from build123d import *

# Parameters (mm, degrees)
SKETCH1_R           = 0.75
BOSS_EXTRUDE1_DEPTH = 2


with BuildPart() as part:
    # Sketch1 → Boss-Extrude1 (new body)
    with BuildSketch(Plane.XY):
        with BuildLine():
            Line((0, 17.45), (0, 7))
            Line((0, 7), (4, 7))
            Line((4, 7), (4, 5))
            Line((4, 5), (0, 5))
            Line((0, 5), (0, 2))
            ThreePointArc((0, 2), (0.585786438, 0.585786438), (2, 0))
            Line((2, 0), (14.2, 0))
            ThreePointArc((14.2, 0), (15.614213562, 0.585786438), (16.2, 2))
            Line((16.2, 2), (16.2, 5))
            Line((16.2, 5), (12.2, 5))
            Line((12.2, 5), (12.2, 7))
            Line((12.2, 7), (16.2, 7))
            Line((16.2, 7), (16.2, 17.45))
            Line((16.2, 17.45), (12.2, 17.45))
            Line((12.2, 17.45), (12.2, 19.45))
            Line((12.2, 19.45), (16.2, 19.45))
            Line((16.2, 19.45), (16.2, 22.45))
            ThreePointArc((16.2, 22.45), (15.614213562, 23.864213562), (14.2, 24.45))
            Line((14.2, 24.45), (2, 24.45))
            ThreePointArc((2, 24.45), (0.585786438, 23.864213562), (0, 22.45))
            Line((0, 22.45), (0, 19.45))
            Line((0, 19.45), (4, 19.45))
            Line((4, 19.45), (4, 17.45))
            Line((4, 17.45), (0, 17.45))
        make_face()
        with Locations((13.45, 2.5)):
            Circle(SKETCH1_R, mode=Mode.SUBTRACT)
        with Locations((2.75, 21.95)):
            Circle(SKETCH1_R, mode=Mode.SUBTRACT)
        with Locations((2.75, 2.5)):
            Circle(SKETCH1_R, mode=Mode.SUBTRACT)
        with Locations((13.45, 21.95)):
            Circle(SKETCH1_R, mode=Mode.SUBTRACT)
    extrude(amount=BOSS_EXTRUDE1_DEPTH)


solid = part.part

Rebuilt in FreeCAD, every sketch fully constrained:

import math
import FreeCAD as App
import Part
import Sketcher

V = App.Vector

doc = App.newDocument("Part")
body = doc.addObject("PartDesign::Body", "Body")

# Sketch on XY plane
sketch1 = doc.addObject("Sketcher::SketchObject", "Sketch")
body.addObject(sketch1)
sketch1.AttachmentSupport = (doc.XY_Plane, [""])
sketch1.MapMode = "FlatFace"
sketch1.addGeometry(Part.LineSegment(V(0, 17.4, 0), V(0, 7, 0)), False)
sketch1.addGeometry(Part.LineSegment(V(0, 7, 0), V(4, 7, 0)), False)
sketch1.addGeometry(Part.LineSegment(V(4, 7, 0), V(4, 5, 0)), False)
sketch1.addGeometry(Part.LineSegment(V(4, 5, 0), V(0, 5, 0)), False)
sketch1.addGeometry(Part.LineSegment(V(0, 5, 0), V(0, 2, 0)), False)
sketch1.addGeometry(Part.ArcOfCircle(Part.Circle(V(2, 2, 0), V(0, 0, 1), 2), math.radians(-180), math.radians(-90)), False)
sketch1.addGeometry(Part.LineSegment(V(2, 0, 0), V(14.2, 0, 0)), False)
sketch1.addGeometry(Part.ArcOfCircle(Part.Circle(V(14.2, 2, 0), V(0, 0, 1), 2), math.radians(-90), math.radians(0)), False)
sketch1.addGeometry(Part.LineSegment(V(16.2, 2, 0), V(16.2, 5, 0)), False)
sketch1.addGeometry(Part.LineSegment(V(16.2, 5, 0), V(12.2, 5, 0)), False)
sketch1.addGeometry(Part.LineSegment(V(12.2, 5, 0), V(12.2, 7, 0)), False)
sketch1.addGeometry(Part.LineSegment(V(12.2, 7, 0), V(16.2, 7, 0)), False)
sketch1.addGeometry(Part.LineSegment(V(16.2, 7, 0), V(16.2, 17.4, 0)), False)
sketch1.addGeometry(Part.LineSegment(V(16.2, 17.4, 0), V(12.2, 17.4, 0)), False)
sketch1.addGeometry(Part.LineSegment(V(12.2, 17.4, 0), V(12.2, 19.4, 0)), False)
sketch1.addGeometry(Part.LineSegment(V(12.2, 19.4, 0), V(16.2, 19.4, 0)), False)
sketch1.addGeometry(Part.LineSegment(V(16.2, 19.4, 0), V(16.2, 22.4, 0)), False)
sketch1.addGeometry(Part.ArcOfCircle(Part.Circle(V(14.2, 22.4, 0), V(0, 0, 1), 2), math.radians(0), math.radians(90)), False)
sketch1.addGeometry(Part.LineSegment(V(14.2, 24.4, 0), V(2, 24.4, 0)), False)
sketch1.addGeometry(Part.ArcOfCircle(Part.Circle(V(2, 22.4, 0), V(0, 0, 1), 2), math.radians(90), math.radians(180)), False)
sketch1.addGeometry(Part.LineSegment(V(0, 22.4, 0), V(0, 19.4, 0)), False)
sketch1.addGeometry(Part.LineSegment(V(0, 19.4, 0), V(4, 19.4, 0)), False)
sketch1.addGeometry(Part.LineSegment(V(4, 19.4, 0), V(4, 17.4, 0)), False)
sketch1.addGeometry(Part.LineSegment(V(4, 17.4, 0), V(0, 17.4, 0)), False)
sketch1.addGeometry(Part.Circle(V(2.8, 2.5, 0), V(0, 0, 1), 0.8), False)
sketch1.addGeometry(Part.Circle(V(13.4, 2.5, 0), V(0, 0, 1), 0.8), False)
sketch1.addGeometry(Part.Circle(V(2.8, 21.9, 0), V(0, 0, 1), 0.8), False)
sketch1.addGeometry(Part.Circle(V(13.4, 21.9, 0), V(0, 0, 1), 0.8), False)
sketch1.addConstraint(Sketcher.Constraint("Coincident", 0, 2, 1, 1))
sketch1.addConstraint(Sketcher.Constraint("Coincident", 1, 2, 2, 1))
sketch1.addConstraint(Sketcher.Constraint("Coincident", 2, 2, 3, 1))
sketch1.addConstraint(Sketcher.Constraint("Coincident", 3, 2, 4, 1))
sketch1.addConstraint(Sketcher.Constraint("Tangent", 4, 2, 5, 1))
sketch1.addConstraint(Sketcher.Constraint("Tangent", 5, 2, 6, 1))
sketch1.addConstraint(Sketcher.Constraint("Tangent", 6, 2, 7, 1))
sketch1.addConstraint(Sketcher.Constraint("Tangent", 7, 2, 8, 1))
sketch1.addConstraint(Sketcher.Constraint("Coincident", 8, 2, 9, 1))
sketch1.addConstraint(Sketcher.Constraint("Coincident", 9, 2, 10, 1))
sketch1.addConstraint(Sketcher.Constraint("Coincident", 10, 2, 11, 1))
sketch1.addConstraint(Sketcher.Constraint("Coincident", 11, 2, 12, 1))
sketch1.addConstraint(Sketcher.Constraint("Coincident", 12, 2, 13, 1))
sketch1.addConstraint(Sketcher.Constraint("Coincident", 13, 2, 14, 1))
sketch1.addConstraint(Sketcher.Constraint("Coincident", 14, 2, 15, 1))
sketch1.addConstraint(Sketcher.Constraint("Coincident", 15, 2, 16, 1))
sketch1.addConstraint(Sketcher.Constraint("Tangent", 16, 2, 17, 1))
sketch1.addConstraint(Sketcher.Constraint("Tangent", 17, 2, 18, 1))
sketch1.addConstraint(Sketcher.Constraint("Tangent", 18, 2, 19, 1))
sketch1.addConstraint(Sketcher.Constraint("Tangent", 19, 2, 20, 1))
sketch1.addConstraint(Sketcher.Constraint("Coincident", 20, 2, 21, 1))
sketch1.addConstraint(Sketcher.Constraint("Coincident", 21, 2, 22, 1))
sketch1.addConstraint(Sketcher.Constraint("Coincident", 22, 2, 23, 1))
sketch1.addConstraint(Sketcher.Constraint("Coincident", 23, 2, 0, 1))
sketch1.addConstraint(Sketcher.Constraint("Vertical", 0))
sketch1.addConstraint(Sketcher.Constraint("Horizontal", 1))
sketch1.addConstraint(Sketcher.Constraint("Vertical", 2))
sketch1.addConstraint(Sketcher.Constraint("Horizontal", 3))
sketch1.addConstraint(Sketcher.Constraint("Vertical", 4))
sketch1.addConstraint(Sketcher.Constraint("Horizontal", 6))
sketch1.addConstraint(Sketcher.Constraint("Vertical", 8))
sketch1.addConstraint(Sketcher.Constraint("Horizontal", 9))
sketch1.addConstraint(Sketcher.Constraint("Vertical", 10))
sketch1.addConstraint(Sketcher.Constraint("Horizontal", 11))
sketch1.addConstraint(Sketcher.Constraint("Vertical", 12))
sketch1.addConstraint(Sketcher.Constraint("Horizontal", 13))
sketch1.addConstraint(Sketcher.Constraint("Vertical", 14))
sketch1.addConstraint(Sketcher.Constraint("Horizontal", 15))
sketch1.addConstraint(Sketcher.Constraint("Vertical", 16))
sketch1.addConstraint(Sketcher.Constraint("Horizontal", 18))
sketch1.addConstraint(Sketcher.Constraint("Vertical", 20))
sketch1.addConstraint(Sketcher.Constraint("Horizontal", 21))
sketch1.addConstraint(Sketcher.Constraint("Vertical", 22))
sketch1.addConstraint(Sketcher.Constraint("Horizontal", 23))
sketch1.addConstraint(Sketcher.Constraint("Equal", 5, 7))
sketch1.addConstraint(Sketcher.Constraint("Equal", 7, 17))
sketch1.addConstraint(Sketcher.Constraint("Equal", 17, 19))
sketch1.addConstraint(Sketcher.Constraint("Equal", 24, 25))
sketch1.addConstraint(Sketcher.Constraint("Equal", 25, 26))
sketch1.addConstraint(Sketcher.Constraint("Equal", 26, 27))
sketch1.addConstraint(Sketcher.Constraint("PointOnObject", 0, 2, -2))
sketch1.addConstraint(Sketcher.Constraint("PointOnObject", 3, 2, -2))
sketch1.addConstraint(Sketcher.Constraint("PointOnObject", 5, 2, -1))
sketch1.addConstraint(Sketcher.Constraint("PointOnObject", 19, 2, -2))
sketch1.addConstraint(Sketcher.Constraint("Horizontal", 24, 3, 25, 3))
sketch1.addConstraint(Sketcher.Constraint("Horizontal", 26, 3, 27, 3))
sketch1.addConstraint(Sketcher.Constraint("Horizontal", 3, 2, 8, 2))
sketch1.addConstraint(Sketcher.Constraint("Horizontal", 1, 2, 10, 2))
sketch1.addConstraint(Sketcher.Constraint("Horizontal", 15, 2, 20, 2))
sketch1.addConstraint(Sketcher.Constraint("Horizontal", 13, 2, 22, 2))
sketch1.addConstraint(Sketcher.Constraint("Vertical", 7, 3, 17, 3))
sketch1.addConstraint(Sketcher.Constraint("Vertical", 24, 3, 26, 3))
sketch1.addConstraint(Sketcher.Constraint("Vertical", 25, 3, 27, 3))
sketch1.addConstraint(Sketcher.Constraint("Vertical", 8, 2, 11, 2))
sketch1.addConstraint(Sketcher.Constraint("Vertical", 10, 2, 13, 2))
sketch1.addConstraint(Sketcher.Constraint("Vertical", 2, 2, 21, 2))
sketch1.addConstraint(Sketcher.Constraint("Equal", 3, 9))
sketch1.addConstraint(Sketcher.Constraint("Equal", 10, 14))
sketch1.addConstraint(Sketcher.Constraint("Equal", 8, 16))
sketch1.addConstraint(Sketcher.Constraint("Radius", 5, 2.0))
sketch1.addConstraint(Sketcher.Constraint("Diameter", 24, 1.5))
sketch1.addConstraint(Sketcher.Constraint("DistanceX", 1, 1, 1, 2, 4.0))
sketch1.addConstraint(Sketcher.Constraint("DistanceY", 2, 2, 2, 1, 2.0))
sketch1.addConstraint(Sketcher.Constraint("DistanceY", 4, 2, 4, 1, 3.0))
sketch1.addConstraint(Sketcher.Constraint("DistanceX", 6, 1, 6, 2, 12.2))
sketch1.addConstraint(Sketcher.Constraint("DistanceY", 0, 2, 0, 1, 10.45))
sketch1.addConstraint(Sketcher.Constraint("DistanceY", -1, 1, 24, 3, 2.5))
sketch1.addConstraint(Sketcher.Constraint("DistanceX", 24, 3, 25, 3, 10.7))
sketch1.addConstraint(Sketcher.Constraint("DistanceY", 26, 3, 19, 3, 0.5))
sketch1.addConstraint(Sketcher.Constraint("DistanceX", -1, 1, 24, 3, 2.75))
pad1 = doc.addObject("PartDesign::Pad", "Pad")
body.addObject(pad1)
pad1.Profile = sketch1
pad1.Length = 2

doc.recompute()
